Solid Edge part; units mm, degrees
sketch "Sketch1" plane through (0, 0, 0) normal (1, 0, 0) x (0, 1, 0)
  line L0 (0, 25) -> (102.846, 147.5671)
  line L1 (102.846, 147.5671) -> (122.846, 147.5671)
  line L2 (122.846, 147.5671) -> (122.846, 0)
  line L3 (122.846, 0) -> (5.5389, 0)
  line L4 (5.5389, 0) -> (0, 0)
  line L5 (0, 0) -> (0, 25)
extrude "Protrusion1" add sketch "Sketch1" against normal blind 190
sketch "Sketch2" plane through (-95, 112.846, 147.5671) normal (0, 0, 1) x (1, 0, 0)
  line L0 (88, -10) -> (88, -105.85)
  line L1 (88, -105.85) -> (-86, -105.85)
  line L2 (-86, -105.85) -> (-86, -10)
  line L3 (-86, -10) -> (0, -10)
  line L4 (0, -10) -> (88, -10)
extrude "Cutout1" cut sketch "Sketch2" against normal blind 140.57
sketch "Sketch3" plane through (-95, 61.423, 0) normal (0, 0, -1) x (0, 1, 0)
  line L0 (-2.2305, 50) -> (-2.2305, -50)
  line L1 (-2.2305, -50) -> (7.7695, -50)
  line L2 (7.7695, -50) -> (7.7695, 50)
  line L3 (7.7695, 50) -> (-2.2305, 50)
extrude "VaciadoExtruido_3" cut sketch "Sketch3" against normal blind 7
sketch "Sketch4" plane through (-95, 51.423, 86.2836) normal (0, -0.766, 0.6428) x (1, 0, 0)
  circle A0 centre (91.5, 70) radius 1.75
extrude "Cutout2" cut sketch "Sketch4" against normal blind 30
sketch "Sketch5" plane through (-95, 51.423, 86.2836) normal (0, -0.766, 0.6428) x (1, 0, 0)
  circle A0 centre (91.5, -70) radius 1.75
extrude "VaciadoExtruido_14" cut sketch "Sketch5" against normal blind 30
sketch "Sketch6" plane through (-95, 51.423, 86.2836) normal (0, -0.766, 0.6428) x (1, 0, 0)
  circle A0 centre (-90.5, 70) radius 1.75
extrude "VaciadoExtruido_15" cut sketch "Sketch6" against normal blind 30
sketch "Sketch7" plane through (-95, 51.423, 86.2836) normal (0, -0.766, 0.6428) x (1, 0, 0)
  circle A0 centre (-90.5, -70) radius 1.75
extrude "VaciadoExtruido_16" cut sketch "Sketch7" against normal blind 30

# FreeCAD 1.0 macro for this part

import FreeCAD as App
import Part
import Sketcher

V = App.Vector
Q = App.Units.Quantity


def add_polygon(sketch, points):
    """Adds a closed chain of lines whose ends are joined by coincident constraints."""
    first, n = sketch.GeometryCount, len(points)
    for a, b in zip(points, points[1:] + points[:1]):
        sketch.addGeometry(Part.LineSegment(App.Vector(*a, 0), App.Vector(*b, 0)), False)
    for i in range(n):
        sketch.addConstraint(Sketcher.Constraint("Coincident", first + i, 2, first + (i + 1) % n, 1))

doc = App.newDocument("Part")
body = doc.addObject("PartDesign::Body", "Body")

# Sketch on YZ plane
sketch1 = doc.addObject("Sketcher::SketchObject", "Sketch")
body.addObject(sketch1)
sketch1.AttachmentSupport = (doc.YZ_Plane, [""])
sketch1.MapMode = "FlatFace"
add_polygon(sketch1, [(103, 148), (0, 25), (0, 0), (123, 0), (123, 148)])  # lines 0-4
sketch1.addConstraint([
    Sketcher.Constraint("Vertical", 1),
    Sketcher.Constraint("Horizontal", 2),
    Sketcher.Constraint("Vertical", 3),
    Sketcher.Constraint("Horizontal", 4),
    Sketcher.Constraint("Coincident", 1, 2, -1, 1),
    Sketcher.Constraint("DistanceX", 4, 2, 4, 1, Q("20 mm")),
    Sketcher.Constraint("DistanceY", 1, 2, 1, 1, Q("25 mm")),
    Sketcher.Constraint("Angle", 0, Q("-130 deg")),
    Sketcher.Constraint("Distance", 0, Q("160 mm")),
])
pad1 = doc.addObject("PartDesign::Pad", "Pad")
body.addObject(pad1)
pad1.Profile = sketch1
pad1.Length = 190
pad1.Reversed = True

# Sketch on XY plane
sketch2 = doc.addObject("Sketcher::SketchObject", "Sketch001")
body.addObject(sketch2)
sketch2.AttachmentSupport = (doc.XY_Plane, [""])
sketch2.MapMode = "FlatFace"
sketch2.AttachmentOffset = App.Placement(V(0, 0, 147.5671), App.Rotation())
add_polygon(sketch2, [(-7, 7), (-7, 103), (-181, 103), (-181, 7)])  # lines 0-3
sketch2.addConstraint([
    Sketcher.Constraint("Vertical", 0),
    Sketcher.Constraint("Horizontal", 1),
    Sketcher.Constraint("Vertical", 2),
    Sketcher.Constraint("Horizontal", 3),
    Sketcher.Constraint("DistanceX", 1, 2, 1, 1, Q("174 mm")),
    Sketcher.Constraint("DistanceX", 0, 2, -1, 1, Q("7 mm")),
    Sketcher.Constraint("DistanceY", 0, 1, 0, 2, Q("95.85 mm")),
    Sketcher.Constraint("DistanceY", -1, 1, 0, 2, Q("102.846 mm")),
])
pocket1 = doc.addObject("PartDesign::Pocket", "Pocket")
body.addObject(pocket1)
pocket1.Profile = sketch2
pocket1.Length = 140.57

# Sketch on XY plane
sketch3 = doc.addObject("Sketcher::SketchObject", "Sketch002")
body.addObject(sketch3)
sketch3.AttachmentSupport = (doc.XY_Plane, [""])
sketch3.MapMode = "FlatFace"
add_polygon(sketch3, [(-45, 69), (-45, 59), (-145, 59), (-145, 69)])  # lines 0-3
sketch3.addConstraint([
    Sketcher.Constraint("Vertical", 0),
    Sketcher.Constraint("Horizontal", 1),
    Sketcher.Constraint("Vertical", 2),
    Sketcher.Constraint("Horizontal", 3),
    Sketcher.Constraint("DistanceX", 1, 2, 1, 1, Q("100 mm")),
    Sketcher.Constraint("DistanceY", 0, 2, 0, 1, Q("10 mm")),
    Sketcher.Constraint("DistanceX", 0, 2, -1, 1, Q("45 mm")),
    Sketcher.Constraint("DistanceY", -1, 1, 0, 2, Q("59.1925 mm")),
])
pocket2 = doc.addObject("PartDesign::Pocket", "Pocket001")
body.addObject(pocket2)
pocket2.Profile = sketch3
pocket2.Length = 7
pocket2.Reversed = True

# Sketch on an angled plane
sketch4 = doc.addObject("Sketcher::SketchObject", "Sketch003")
body.addObject(sketch4)
sketch4.Placement = App.Placement(V(-95, 51.423, 86.2836), App.Rotation(V(1, 0, 0), V(0, 0.64278761, 0.766044443), V(0, -0.766044443, 0.64278761), "ZXY"))
sketch4.addGeometry(Part.Circle(V(91.5, 70, 0), V(0, 0, 1), 1.8), False)
sketch4.addConstraint([
    Sketcher.Constraint("Diameter", 0, Q("3.5 mm")),
    Sketcher.Constraint("DistanceY", -1, 1, 0, 3, Q("70 mm")),
    Sketcher.Constraint("DistanceX", -1, 1, 0, 3, Q("91.5 mm")),
])
pocket3 = doc.addObject("PartDesign::Pocket", "Pocket002")
body.addObject(pocket3)
pocket3.Profile = sketch4
pocket3.Length = 30

# Sketch on an angled plane
sketch5 = doc.addObject("Sketcher::SketchObject", "Sketch004")
body.addObject(sketch5)
sketch5.Placement = App.Placement(V(-95, 51.423, 86.2836), App.Rotation(V(1, 0, 0), V(0, 0.64278761, 0.766044443), V(0, -0.766044443, 0.64278761), "ZXY"))
sketch5.addGeometry(Part.Circle(V(91.5, -70, 0), V(0, 0, 1), 1.8), False)
sketch5.addConstraint([
    Sketcher.Constraint("Diameter", 0, Q("3.5 mm")),
    Sketcher.Constraint("DistanceY", 0, 3, -1, 1, Q("70 mm")),
    Sketcher.Constraint("DistanceX", -1, 1, 0, 3, Q("91.5 mm")),
])
pocket4 = doc.addObject("PartDesign::Pocket", "Pocket003")
body.addObject(pocket4)
pocket4.Profile = sketch5
pocket4.Length = 30

# Sketch on an angled plane
sketch6 = doc.addObject("Sketcher::SketchObject", "Sketch005")
body.addObject(sketch6)
sketch6.Placement = App.Placement(V(-95, 51.423, 86.2836), App.Rotation(V(1, 0, 0), V(0, 0.64278761, 0.766044443), V(0, -0.766044443, 0.64278761), "ZXY"))
sketch6.addGeometry(Part.Circle(V(-90.5, 70, 0), V(0, 0, 1), 1.8), False)
sketch6.addConstraint([
    Sketcher.Constraint("Diameter", 0, Q("3.5 mm")),
    Sketcher.Constraint("DistanceY", -1, 1, 0, 3, Q("70 mm")),
    Sketcher.Constraint("DistanceX", 0, 3, -1, 1, Q("90.5 mm")),
])
pocket5 = doc.addObject("PartDesign::Pocket", "Pocket004")
body.addObject(pocket5)
pocket5.Profile = sketch6
pocket5.Length = 30

# Sketch on an angled plane
sketch7 = doc.addObject("Sketcher::SketchObject", "Sketch006")
body.addObject(sketch7)
sketch7.Placement = App.Placement(V(-95, 51.423, 86.2836), App.Rotation(V(1, 0, 0), V(0, 0.64278761, 0.766044443), V(0, -0.766044443, 0.64278761), "ZXY"))
sketch7.addGeometry(Part.Circle(V(-90.5, -70, 0), V(0, 0, 1), 1.8), False)
sketch7.addConstraint([
    Sketcher.Constraint("Diameter", 0, Q("3.5 mm")),
    Sketcher.Constraint("DistanceY", 0, 3, -1, 1, Q("70 mm")),
    Sketcher.Constraint("DistanceX", 0, 3, -1, 1, Q("90.5 mm")),
])
pocket6 = doc.addObject("PartDesign::Pocket", "Pocket005")
body.addObject(pocket6)
pocket6.Profile = sketch7
pocket6.Length = 30

doc.recompute()
